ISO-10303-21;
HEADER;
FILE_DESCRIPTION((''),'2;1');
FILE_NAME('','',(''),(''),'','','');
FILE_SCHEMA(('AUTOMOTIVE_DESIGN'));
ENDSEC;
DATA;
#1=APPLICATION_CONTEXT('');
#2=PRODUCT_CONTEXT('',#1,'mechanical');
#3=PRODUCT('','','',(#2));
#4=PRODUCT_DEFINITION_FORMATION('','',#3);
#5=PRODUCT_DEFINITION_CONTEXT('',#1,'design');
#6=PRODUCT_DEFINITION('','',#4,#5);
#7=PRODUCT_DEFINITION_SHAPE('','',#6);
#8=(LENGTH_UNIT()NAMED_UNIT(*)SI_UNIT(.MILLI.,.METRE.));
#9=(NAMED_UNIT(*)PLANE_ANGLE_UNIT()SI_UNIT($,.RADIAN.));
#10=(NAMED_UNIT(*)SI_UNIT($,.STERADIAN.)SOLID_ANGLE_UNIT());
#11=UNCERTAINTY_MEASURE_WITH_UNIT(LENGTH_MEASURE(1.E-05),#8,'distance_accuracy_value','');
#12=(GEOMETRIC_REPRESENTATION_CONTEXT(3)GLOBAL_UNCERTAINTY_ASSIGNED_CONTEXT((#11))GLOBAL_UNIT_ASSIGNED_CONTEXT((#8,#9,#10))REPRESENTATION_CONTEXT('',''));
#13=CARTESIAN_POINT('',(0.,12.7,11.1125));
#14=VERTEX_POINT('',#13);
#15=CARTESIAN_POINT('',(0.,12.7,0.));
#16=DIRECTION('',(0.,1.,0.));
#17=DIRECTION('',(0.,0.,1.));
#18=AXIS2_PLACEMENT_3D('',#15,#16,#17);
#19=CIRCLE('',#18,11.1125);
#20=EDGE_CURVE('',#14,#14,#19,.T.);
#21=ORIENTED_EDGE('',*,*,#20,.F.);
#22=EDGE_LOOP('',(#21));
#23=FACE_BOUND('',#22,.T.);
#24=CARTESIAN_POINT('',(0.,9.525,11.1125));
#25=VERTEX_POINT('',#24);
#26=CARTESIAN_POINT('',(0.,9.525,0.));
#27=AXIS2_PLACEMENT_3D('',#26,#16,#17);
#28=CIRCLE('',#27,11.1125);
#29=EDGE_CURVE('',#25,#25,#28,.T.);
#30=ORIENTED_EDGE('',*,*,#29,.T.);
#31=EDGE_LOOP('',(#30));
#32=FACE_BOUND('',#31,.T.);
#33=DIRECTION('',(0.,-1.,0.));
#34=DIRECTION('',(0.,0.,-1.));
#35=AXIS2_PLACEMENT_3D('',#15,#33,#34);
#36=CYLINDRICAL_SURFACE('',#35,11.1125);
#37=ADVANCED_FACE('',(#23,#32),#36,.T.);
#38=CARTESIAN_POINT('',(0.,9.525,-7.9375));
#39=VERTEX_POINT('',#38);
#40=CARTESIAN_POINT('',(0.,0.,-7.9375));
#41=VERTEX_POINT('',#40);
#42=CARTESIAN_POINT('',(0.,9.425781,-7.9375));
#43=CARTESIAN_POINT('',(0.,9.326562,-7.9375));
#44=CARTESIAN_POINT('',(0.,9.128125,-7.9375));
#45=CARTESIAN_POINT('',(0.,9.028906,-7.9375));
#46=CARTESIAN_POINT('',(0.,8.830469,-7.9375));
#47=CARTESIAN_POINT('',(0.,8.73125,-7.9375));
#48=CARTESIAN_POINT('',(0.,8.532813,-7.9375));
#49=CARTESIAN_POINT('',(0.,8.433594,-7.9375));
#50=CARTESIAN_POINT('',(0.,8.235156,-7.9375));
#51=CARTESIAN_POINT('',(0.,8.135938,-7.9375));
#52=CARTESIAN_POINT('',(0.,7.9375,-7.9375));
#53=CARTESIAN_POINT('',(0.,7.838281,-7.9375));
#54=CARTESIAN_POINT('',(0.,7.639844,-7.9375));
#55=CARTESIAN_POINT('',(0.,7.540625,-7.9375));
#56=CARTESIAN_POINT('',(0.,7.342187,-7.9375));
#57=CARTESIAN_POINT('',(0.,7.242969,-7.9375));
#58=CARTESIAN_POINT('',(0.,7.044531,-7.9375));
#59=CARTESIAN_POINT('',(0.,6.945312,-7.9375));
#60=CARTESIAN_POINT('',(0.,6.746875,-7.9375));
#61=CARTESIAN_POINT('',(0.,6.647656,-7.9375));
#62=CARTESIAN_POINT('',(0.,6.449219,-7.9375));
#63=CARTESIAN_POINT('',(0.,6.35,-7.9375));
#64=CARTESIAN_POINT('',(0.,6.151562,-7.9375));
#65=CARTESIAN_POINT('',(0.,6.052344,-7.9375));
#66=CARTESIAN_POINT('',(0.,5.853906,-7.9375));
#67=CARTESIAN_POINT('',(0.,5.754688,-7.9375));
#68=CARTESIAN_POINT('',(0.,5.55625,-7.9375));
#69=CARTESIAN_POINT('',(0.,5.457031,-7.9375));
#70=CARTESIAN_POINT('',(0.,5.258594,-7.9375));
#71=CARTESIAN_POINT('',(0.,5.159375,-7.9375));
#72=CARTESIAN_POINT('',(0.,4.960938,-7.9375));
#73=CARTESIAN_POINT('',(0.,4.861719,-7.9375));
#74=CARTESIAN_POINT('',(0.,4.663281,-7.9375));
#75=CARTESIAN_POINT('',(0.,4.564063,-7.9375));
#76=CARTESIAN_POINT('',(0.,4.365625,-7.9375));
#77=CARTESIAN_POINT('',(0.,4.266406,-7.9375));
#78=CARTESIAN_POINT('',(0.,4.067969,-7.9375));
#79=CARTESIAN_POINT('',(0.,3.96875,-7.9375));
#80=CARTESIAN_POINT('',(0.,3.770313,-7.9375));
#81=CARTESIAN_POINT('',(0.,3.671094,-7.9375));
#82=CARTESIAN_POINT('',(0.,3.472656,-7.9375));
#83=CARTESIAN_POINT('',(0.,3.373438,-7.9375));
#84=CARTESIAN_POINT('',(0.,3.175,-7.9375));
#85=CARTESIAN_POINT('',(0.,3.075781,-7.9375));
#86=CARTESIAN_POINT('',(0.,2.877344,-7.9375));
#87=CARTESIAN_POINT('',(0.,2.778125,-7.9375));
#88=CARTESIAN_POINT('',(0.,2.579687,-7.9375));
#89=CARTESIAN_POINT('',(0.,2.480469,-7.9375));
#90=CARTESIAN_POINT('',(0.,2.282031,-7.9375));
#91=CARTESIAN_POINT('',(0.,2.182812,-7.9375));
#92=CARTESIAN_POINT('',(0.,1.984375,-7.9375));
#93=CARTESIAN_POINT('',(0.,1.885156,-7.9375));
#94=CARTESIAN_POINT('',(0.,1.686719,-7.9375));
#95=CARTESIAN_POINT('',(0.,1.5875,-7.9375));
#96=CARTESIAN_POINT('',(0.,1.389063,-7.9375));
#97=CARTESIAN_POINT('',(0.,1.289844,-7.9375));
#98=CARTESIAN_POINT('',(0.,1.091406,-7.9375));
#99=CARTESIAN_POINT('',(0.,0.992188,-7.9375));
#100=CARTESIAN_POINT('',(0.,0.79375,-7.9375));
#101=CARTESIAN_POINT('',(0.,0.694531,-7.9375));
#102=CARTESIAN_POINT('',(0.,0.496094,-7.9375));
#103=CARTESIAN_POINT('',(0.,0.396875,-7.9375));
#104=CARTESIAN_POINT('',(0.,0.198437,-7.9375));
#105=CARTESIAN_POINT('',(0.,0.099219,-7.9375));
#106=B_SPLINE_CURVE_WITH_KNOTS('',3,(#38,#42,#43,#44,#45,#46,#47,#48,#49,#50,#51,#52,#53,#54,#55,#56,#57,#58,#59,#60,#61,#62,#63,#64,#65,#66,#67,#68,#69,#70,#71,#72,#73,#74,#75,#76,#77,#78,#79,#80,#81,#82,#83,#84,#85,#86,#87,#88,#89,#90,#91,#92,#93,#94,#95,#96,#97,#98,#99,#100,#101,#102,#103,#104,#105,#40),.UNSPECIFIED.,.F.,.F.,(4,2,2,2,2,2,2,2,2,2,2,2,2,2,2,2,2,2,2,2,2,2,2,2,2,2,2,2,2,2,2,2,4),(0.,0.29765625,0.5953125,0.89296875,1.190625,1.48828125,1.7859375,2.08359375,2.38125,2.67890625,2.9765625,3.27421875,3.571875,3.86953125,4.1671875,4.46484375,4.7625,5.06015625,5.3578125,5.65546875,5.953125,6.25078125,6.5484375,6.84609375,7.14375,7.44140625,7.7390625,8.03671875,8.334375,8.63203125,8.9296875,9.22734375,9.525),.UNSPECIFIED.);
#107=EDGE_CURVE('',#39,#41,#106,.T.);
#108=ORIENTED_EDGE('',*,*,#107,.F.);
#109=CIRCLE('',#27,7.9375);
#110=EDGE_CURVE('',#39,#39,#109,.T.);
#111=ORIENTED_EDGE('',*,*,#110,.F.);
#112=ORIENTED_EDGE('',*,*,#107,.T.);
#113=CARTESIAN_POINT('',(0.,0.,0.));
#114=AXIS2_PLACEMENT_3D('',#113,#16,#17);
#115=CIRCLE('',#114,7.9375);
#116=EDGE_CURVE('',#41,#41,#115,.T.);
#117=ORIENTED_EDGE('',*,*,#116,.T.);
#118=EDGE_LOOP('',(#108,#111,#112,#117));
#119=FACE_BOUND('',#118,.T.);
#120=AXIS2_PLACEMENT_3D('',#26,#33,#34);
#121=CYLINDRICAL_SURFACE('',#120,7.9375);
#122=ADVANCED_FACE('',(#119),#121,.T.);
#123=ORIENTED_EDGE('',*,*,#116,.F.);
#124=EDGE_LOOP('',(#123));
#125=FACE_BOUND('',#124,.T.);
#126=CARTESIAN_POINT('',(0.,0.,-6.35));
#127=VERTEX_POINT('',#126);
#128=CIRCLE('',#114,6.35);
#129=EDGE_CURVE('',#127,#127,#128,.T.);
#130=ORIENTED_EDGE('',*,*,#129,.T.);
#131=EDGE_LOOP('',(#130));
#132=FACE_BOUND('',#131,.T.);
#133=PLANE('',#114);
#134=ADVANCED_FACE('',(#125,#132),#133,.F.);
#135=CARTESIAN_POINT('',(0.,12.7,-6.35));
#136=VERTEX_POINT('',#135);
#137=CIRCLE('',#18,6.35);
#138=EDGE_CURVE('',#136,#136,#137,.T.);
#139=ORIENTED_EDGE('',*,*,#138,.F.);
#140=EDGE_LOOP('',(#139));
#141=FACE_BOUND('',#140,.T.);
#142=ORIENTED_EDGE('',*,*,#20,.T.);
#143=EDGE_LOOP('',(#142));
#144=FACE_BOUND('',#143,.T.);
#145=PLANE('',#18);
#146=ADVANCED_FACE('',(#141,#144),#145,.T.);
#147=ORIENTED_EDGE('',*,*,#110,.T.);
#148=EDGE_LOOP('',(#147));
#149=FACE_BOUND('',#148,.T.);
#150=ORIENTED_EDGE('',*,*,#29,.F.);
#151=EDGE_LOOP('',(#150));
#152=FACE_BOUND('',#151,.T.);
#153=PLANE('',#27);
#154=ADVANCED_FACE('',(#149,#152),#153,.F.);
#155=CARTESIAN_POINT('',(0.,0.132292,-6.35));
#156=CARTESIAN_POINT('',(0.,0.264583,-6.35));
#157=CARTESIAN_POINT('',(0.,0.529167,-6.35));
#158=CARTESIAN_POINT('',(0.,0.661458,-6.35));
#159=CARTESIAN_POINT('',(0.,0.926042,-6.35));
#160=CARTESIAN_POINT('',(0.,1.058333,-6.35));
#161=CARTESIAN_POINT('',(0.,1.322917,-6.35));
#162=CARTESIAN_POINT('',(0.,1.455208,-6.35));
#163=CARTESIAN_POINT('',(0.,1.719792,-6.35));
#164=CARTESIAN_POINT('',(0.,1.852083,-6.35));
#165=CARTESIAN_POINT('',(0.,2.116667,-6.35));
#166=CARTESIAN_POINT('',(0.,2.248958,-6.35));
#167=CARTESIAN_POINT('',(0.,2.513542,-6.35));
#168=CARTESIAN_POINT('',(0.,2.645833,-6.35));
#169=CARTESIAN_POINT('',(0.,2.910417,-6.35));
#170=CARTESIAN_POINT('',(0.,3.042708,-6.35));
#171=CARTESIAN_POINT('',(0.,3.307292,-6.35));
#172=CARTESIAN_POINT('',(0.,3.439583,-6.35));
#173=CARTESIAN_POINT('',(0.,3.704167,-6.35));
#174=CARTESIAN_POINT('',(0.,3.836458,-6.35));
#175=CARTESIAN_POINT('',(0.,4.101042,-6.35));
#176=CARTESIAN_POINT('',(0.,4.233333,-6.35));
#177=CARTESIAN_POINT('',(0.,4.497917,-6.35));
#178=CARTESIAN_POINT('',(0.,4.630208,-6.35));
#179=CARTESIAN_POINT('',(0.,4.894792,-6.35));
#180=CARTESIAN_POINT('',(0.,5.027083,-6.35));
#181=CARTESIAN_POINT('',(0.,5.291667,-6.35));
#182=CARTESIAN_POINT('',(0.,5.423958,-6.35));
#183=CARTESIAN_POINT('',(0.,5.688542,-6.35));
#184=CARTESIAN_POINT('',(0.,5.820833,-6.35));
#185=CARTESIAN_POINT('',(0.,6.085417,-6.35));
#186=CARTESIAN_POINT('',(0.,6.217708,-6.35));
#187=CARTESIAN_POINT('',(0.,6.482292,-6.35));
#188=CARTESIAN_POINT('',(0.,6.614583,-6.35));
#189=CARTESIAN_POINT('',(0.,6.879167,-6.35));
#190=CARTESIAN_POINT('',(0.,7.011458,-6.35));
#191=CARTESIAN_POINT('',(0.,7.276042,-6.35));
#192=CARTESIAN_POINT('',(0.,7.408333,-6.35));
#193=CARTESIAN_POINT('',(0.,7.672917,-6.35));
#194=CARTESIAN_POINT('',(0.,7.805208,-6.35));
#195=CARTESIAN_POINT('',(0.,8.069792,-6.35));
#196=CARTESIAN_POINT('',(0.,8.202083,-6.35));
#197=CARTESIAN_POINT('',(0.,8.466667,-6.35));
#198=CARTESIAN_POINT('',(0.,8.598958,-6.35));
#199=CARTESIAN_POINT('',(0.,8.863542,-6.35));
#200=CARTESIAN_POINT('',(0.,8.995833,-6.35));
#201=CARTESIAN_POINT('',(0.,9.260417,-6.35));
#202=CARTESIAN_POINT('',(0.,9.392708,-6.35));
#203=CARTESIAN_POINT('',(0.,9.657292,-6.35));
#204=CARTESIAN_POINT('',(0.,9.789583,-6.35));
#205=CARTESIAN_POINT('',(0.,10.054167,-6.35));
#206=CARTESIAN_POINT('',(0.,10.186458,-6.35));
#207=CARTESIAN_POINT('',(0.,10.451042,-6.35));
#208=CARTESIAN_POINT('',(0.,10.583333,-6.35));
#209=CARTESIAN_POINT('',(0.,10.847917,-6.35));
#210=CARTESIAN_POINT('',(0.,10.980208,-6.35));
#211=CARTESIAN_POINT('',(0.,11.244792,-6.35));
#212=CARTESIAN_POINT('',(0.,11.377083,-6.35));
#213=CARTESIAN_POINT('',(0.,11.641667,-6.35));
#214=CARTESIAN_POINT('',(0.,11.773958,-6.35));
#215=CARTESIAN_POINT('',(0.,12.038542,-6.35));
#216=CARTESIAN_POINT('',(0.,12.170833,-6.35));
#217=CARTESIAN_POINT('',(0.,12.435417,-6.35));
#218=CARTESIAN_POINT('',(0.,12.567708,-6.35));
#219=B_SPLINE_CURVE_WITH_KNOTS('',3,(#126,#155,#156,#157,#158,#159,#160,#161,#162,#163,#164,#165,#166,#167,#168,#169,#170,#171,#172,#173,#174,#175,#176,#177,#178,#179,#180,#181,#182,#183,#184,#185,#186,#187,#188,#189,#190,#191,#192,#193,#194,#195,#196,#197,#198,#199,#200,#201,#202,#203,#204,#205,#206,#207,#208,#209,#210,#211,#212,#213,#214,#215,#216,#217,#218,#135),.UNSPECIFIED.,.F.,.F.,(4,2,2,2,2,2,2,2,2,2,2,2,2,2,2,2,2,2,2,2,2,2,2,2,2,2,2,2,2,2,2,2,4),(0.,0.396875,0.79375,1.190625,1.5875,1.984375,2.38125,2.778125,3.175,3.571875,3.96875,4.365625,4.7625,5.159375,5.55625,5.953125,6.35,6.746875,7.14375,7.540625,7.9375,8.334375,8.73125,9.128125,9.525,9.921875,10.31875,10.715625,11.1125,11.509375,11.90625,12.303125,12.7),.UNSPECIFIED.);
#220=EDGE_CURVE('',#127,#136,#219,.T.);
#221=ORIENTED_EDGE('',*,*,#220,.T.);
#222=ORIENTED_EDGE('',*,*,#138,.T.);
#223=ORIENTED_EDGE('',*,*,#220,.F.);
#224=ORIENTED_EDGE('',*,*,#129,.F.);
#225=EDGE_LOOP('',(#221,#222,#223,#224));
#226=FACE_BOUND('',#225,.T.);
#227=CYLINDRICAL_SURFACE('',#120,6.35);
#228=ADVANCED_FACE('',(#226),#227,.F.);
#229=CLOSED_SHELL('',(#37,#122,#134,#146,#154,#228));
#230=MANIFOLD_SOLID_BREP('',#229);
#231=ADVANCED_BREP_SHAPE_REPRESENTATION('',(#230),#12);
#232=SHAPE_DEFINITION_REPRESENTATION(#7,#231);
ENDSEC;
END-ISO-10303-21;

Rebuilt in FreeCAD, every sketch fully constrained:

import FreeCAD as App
import Part
import Sketcher
Q = App.Units.Quantity

doc = App.newDocument("Part")
params = doc.addObject("Spreadsheet::Sheet", "Params")
for row, (alias, value) in enumerate([
    ("sketch1_diameter", "0.5 in"),
    ("sketch1_diameter2", "0.625 in"),
    ("pad1_length", "0.375 in"),
    ("sketch2_diameter", "0.5 in"),
    ("sketch2_diameter2", "0.875 in"),
    ("pad2_length", "0.125 in"),
], start=1):
    params.set(f"A{row}", alias)
    params.set(f"B{row}", "=" + value)
    params.setAlias(f"B{row}", alias)

body = doc.addObject("PartDesign::Body", "Body")

# Sketch on XZ plane
sketch1 = doc.addObject("Sketcher::SketchObject", "Sketch")
body.addObject(sketch1)
sketch1.AttachmentSupport = (doc.XZ_Plane, [""])
sketch1.MapMode = "FlatFace"
sketch1.addGeometry([
    Part.Circle(App.Vector(0, 0, 0), App.Vector(0, 0, 1), 8),
    Part.Circle(App.Vector(0, 0, 0), App.Vector(0, 0, 1), 6),
], False)
sketch1.addConstraint([
    Sketcher.Constraint("Coincident", 0, 3, -1, 1),
    Sketcher.Constraint("Coincident", 1, 3, -1, 1),
    Sketcher.Constraint("Diameter", 1, Q("0.5 in")),
    Sketcher.Constraint("Diameter", 0, Q("0.625 in")),
])
sketch1.setExpression("Constraints[2]", "Params.sketch1_diameter")
sketch1.setExpression("Constraints[3]", "Params.sketch1_diameter2")
pad1 = doc.addObject("PartDesign::Pad", "Pad")
body.addObject(pad1)
pad1.Profile = sketch1
pad1.setExpression("Length", "Params.pad1_length")
pad1.Reversed = True

# Sketch on XZ plane
sketch2 = doc.addObject("Sketcher::SketchObject", "Sketch001")
body.addObject(sketch2)
sketch2.AttachmentSupport = (doc.XZ_Plane, [""])
sketch2.MapMode = "FlatFace"
sketch2.AttachmentOffset = App.Placement(App.Vector(0, 0, -0.375 * 25.4), App.Rotation())
sketch2.addGeometry([
    Part.Circle(App.Vector(0, 0, 0), App.Vector(0, 0, 1), 11),
    Part.Circle(App.Vector(0, 0, 0), App.Vector(0, 0, 1), 6),
], False)
sketch2.addConstraint([
    Sketcher.Constraint("Coincident", 0, 3, -1, 1),
    Sketcher.Constraint("Coincident", 1, 3, -1, 1),
    Sketcher.Constraint("Diameter", 1, Q("0.5 in")),
    Sketcher.Constraint("Diameter", 0, Q("0.875 in")),
])
sketch2.setExpression("Constraints[2]", "Params.sketch2_diameter")
sketch2.setExpression("Constraints[3]", "Params.sketch2_diameter2")
pad2 = doc.addObject("PartDesign::Pad", "Pad001")
body.addObject(pad2)
pad2.Profile = sketch2
pad2.setExpression("Length", "Params.pad2_length")
pad2.Reversed = True

doc.recompute()
